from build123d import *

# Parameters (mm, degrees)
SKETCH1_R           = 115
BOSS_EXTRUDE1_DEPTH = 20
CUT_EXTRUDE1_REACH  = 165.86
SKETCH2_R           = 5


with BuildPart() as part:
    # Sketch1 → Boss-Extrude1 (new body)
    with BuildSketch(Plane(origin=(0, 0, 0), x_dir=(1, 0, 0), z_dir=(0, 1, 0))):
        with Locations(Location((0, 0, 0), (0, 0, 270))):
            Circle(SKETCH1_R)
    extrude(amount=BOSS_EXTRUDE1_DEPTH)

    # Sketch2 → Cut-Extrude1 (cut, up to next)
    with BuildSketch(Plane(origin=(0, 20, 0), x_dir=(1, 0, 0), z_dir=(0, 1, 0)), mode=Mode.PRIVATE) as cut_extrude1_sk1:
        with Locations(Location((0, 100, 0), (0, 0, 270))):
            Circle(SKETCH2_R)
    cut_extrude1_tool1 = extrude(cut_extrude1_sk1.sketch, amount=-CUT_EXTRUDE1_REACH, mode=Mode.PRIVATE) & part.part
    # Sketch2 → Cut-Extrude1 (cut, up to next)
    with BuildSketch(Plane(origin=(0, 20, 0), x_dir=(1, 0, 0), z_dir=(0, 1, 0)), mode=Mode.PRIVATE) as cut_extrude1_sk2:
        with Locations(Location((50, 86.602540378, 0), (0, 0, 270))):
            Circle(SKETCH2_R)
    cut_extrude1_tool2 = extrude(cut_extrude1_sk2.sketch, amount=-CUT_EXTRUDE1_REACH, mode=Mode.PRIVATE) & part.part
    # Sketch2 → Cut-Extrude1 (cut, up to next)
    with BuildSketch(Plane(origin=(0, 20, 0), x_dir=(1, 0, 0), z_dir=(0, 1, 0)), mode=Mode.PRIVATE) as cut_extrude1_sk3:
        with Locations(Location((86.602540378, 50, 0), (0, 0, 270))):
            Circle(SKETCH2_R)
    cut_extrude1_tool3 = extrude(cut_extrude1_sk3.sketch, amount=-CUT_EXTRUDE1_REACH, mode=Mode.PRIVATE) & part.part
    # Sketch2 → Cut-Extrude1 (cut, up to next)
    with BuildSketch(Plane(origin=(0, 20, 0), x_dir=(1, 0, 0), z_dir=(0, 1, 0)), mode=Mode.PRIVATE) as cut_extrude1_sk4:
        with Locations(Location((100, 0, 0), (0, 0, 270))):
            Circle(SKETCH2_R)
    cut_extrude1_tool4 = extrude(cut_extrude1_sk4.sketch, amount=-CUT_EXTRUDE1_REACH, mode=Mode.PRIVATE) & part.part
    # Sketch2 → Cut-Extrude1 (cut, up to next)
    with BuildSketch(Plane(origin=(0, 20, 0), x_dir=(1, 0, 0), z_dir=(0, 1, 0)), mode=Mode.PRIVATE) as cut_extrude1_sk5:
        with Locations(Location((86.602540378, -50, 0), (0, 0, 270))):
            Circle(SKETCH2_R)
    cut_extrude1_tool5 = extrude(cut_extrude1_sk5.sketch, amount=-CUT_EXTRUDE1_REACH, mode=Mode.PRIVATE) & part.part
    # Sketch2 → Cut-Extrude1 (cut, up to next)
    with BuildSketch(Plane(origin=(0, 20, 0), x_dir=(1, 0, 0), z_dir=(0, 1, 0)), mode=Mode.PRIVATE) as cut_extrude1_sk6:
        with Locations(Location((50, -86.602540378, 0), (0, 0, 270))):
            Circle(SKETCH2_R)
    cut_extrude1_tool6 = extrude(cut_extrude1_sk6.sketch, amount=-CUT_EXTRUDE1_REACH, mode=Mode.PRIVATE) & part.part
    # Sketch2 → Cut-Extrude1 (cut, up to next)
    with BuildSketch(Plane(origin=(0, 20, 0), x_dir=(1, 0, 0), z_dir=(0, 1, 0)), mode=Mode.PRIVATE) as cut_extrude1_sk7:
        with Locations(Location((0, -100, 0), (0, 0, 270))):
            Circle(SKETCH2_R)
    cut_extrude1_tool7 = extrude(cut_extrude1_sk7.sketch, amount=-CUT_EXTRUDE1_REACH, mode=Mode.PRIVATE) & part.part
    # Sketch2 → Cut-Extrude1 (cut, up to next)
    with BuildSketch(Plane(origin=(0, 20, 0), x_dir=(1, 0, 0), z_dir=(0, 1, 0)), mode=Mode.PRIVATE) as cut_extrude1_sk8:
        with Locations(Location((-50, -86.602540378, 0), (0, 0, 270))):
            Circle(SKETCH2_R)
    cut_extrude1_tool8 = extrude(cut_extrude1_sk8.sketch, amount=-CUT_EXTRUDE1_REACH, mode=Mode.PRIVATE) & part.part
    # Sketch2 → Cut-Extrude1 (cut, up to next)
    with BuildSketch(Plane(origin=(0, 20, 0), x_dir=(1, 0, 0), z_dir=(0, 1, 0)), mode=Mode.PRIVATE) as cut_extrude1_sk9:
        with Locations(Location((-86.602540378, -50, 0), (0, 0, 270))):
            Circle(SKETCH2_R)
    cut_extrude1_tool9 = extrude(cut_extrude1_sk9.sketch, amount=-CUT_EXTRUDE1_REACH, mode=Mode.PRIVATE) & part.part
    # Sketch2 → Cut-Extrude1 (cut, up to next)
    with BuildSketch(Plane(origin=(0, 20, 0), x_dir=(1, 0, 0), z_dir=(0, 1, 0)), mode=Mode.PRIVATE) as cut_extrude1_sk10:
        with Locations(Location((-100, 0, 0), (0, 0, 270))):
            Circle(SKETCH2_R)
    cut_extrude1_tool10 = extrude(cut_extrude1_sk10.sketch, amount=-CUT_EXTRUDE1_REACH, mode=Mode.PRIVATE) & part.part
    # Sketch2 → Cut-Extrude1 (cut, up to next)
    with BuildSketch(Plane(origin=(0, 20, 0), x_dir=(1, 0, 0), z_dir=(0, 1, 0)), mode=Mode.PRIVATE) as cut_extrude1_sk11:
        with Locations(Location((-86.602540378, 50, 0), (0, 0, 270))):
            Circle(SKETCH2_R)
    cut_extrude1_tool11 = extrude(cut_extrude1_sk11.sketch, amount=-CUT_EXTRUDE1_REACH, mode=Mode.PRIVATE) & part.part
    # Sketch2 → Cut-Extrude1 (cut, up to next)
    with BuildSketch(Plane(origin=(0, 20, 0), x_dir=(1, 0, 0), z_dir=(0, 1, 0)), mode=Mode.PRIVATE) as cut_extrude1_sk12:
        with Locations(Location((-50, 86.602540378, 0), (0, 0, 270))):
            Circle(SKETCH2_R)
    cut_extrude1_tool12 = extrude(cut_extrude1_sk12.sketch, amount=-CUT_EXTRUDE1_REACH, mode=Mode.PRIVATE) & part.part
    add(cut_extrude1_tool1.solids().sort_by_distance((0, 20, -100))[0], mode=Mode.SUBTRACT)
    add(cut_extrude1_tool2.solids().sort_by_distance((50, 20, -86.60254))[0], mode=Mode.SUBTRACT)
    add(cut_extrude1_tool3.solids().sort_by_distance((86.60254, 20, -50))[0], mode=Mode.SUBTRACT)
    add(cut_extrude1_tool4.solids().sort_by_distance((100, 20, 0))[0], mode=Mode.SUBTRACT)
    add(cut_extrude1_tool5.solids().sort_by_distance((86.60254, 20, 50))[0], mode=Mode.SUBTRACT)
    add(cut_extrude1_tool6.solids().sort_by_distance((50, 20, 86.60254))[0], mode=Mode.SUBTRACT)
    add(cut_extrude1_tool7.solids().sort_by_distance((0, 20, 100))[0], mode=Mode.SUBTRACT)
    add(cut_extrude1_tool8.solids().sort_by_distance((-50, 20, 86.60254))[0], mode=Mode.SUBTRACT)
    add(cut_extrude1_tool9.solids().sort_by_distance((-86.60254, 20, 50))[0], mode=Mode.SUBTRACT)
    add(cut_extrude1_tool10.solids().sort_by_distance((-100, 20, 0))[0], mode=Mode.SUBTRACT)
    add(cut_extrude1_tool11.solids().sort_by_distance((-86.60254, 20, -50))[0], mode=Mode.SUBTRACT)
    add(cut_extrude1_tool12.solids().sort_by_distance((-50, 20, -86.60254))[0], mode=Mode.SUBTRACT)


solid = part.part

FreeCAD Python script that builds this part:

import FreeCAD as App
import Part
import Sketcher

V = App.Vector

doc = App.newDocument("Part")
body = doc.addObject("PartDesign::Body", "Body")

# Sketch on XZ plane
sketch1 = doc.addObject("Sketcher::SketchObject", "Sketch")
body.addObject(sketch1)
sketch1.AttachmentSupport = (doc.XZ_Plane, [""])
sketch1.MapMode = "FlatFace"
sketch1.addGeometry(Part.Circle(V(0, 0, 0), V(0, 0, 1), 115), False)
sketch1.addConstraint(Sketcher.Constraint("Coincident", 0, 3, -1, 1))
sketch1.addConstraint(Sketcher.Constraint("Diameter", 0, 230.0))
pad1 = doc.addObject("PartDesign::Pad", "Pad")
body.addObject(pad1)
pad1.Profile = sketch1
pad1.Length = 20
pad1.Reversed = True

# Sketch on XZ plane
sketch2 = doc.addObject("Sketcher::SketchObject", "Sketch001")
body.addObject(sketch2)
sketch2.AttachmentSupport = (doc.XZ_Plane, [""])
sketch2.MapMode = "FlatFace"
sketch2.AttachmentOffset = App.Placement(V(0, 0, -20), App.Rotation())
sketch2.addGeometry(Part.Circle(V(0, -100, 0), V(0, 0, 1), 5), False)
sketch2.addConstraint(Sketcher.Constraint("PointOnObject", 0, 3, -2))
sketch2.addConstraint(Sketcher.Constraint("Diameter", 0, 10.0))
sketch2.addConstraint(Sketcher.Constraint("DistanceY", 0, 3, -1, 1, 100.0))
pocket1 = doc.addObject("PartDesign::Pocket", "Pocket")
body.addObject(pocket1)
pocket1.Profile = sketch2
pocket1.Type = "UpToFirst"
pocket1.Reversed = True

# Sketch on XZ plane
sketch3 = doc.addObject("Sketcher::SketchObject", "Sketch002")
body.addObject(sketch3)
sketch3.AttachmentSupport = (doc.XZ_Plane, [""])
sketch3.MapMode = "FlatFace"
sketch3.AttachmentOffset = App.Placement(V(0, 0, -20), App.Rotation())
sketch3.addGeometry(Part.Circle(V(50, -87, 0), V(0, 0, 1), 5), False)
sketch3.addConstraint(Sketcher.Constraint("Diameter", 0, 10.0))
sketch3.addConstraint(Sketcher.Constraint("DistanceX", -1, 1, 0, 3, 50.0))
sketch3.addConstraint(Sketcher.Constraint("DistanceY", 0, 3, -1, 1, 86.60254))
pocket2 = doc.addObject("PartDesign::Pocket", "Pocket001")
body.addObject(pocket2)
pocket2.Profile = sketch3
pocket2.Type = "UpToFirst"
pocket2.Reversed = True

# Sketch on XZ plane
sketch4 = doc.addObject("Sketcher::SketchObject", "Sketch003")
body.addObject(sketch4)
sketch4.AttachmentSupport = (doc.XZ_Plane, [""])
sketch4.MapMode = "FlatFace"
sketch4.AttachmentOffset = App.Placement(V(0, 0, -20), App.Rotation())
sketch4.addGeometry(Part.Circle(V(87, -50, 0), V(0, 0, 1), 5), False)
sketch4.addConstraint(Sketcher.Constraint("Diameter", 0, 10.0))
sketch4.addConstraint(Sketcher.Constraint("DistanceY", 0, 3, -1, 1, 50.0))
sketch4.addConstraint(Sketcher.Constraint("DistanceX", -1, 1, 0, 3, 86.60254))
pocket3 = doc.addObject("PartDesign::Pocket", "Pocket002")
body.addObject(pocket3)
pocket3.Profile = sketch4
pocket3.Type = "UpToFirst"
pocket3.Reversed = True

# Sketch on XZ plane
sketch5 = doc.addObject("Sketcher::SketchObject", "Sketch004")
body.addObject(sketch5)
sketch5.AttachmentSupport = (doc.XZ_Plane, [""])
sketch5.MapMode = "FlatFace"
sketch5.AttachmentOffset = App.Placement(V(0, 0, -20), App.Rotation())
sketch5.addGeometry(Part.Circle(V(100, 0, 0), V(0, 0, 1), 5), False)
sketch5.addConstraint(Sketcher.Constraint("PointOnObject", 0, 3, -1))
sketch5.addConstraint(Sketcher.Constraint("Diameter", 0, 10.0))
sketch5.addConstraint(Sketcher.Constraint("DistanceX", -1, 1, 0, 3, 100.0))
pocket4 = doc.addObject("PartDesign::Pocket", "Pocket003")
body.addObject(pocket4)
pocket4.Profile = sketch5
pocket4.Type = "UpToFirst"
pocket4.Reversed = True

# Sketch on XZ plane
sketch6 = doc.addObject("Sketcher::SketchObject", "Sketch005")
body.addObject(sketch6)
sketch6.AttachmentSupport = (doc.XZ_Plane, [""])
sketch6.MapMode = "FlatFace"
sketch6.AttachmentOffset = App.Placement(V(0, 0, -20), App.Rotation())
sketch6.addGeometry(Part.Circle(V(87, 50, 0), V(0, 0, 1), 5), False)
sketch6.addConstraint(Sketcher.Constraint("Diameter", 0, 10.0))
sketch6.addConstraint(Sketcher.Constraint("DistanceY", -1, 1, 0, 3, 50.0))
sketch6.addConstraint(Sketcher.Constraint("DistanceX", -1, 1, 0, 3, 86.60254))
pocket5 = doc.addObject("PartDesign::Pocket", "Pocket004")
body.addObject(pocket5)
pocket5.Profile = sketch6
pocket5.Type = "UpToFirst"
pocket5.Reversed = True

# Sketch on XZ plane
sketch7 = doc.addObject("Sketcher::SketchObject", "Sketch006")
body.addObject(sketch7)
sketch7.AttachmentSupport = (doc.XZ_Plane, [""])
sketch7.MapMode = "FlatFace"
sketch7.AttachmentOffset = App.Placement(V(0, 0, -20), App.Rotation())
sketch7.addGeometry(Part.Circle(V(50, 87, 0), V(0, 0, 1), 5), False)
sketch7.addConstraint(Sketcher.Constraint("Diameter", 0, 10.0))
sketch7.addConstraint(Sketcher.Constraint("DistanceX", -1, 1, 0, 3, 50.0))
sketch7.addConstraint(Sketcher.Constraint("DistanceY", -1, 1, 0, 3, 86.60254))
pocket6 = doc.addObject("PartDesign::Pocket", "Pocket005")
body.addObject(pocket6)
pocket6.Profile = sketch7
pocket6.Type = "UpToFirst"
pocket6.Reversed = True

# Sketch on XZ plane
sketch8 = doc.addObject("Sketcher::SketchObject", "Sketch007")
body.addObject(sketch8)
sketch8.AttachmentSupport = (doc.XZ_Plane, [""])
sketch8.MapMode = "FlatFace"
sketch8.AttachmentOffset = App.Placement(V(0, 0, -20), App.Rotation())
sketch8.addGeometry(Part.Circle(V(0, 100, 0), V(0, 0, 1), 5), False)
sketch8.addConstraint(Sketcher.Constraint("PointOnObject", 0, 3, -2))
sketch8.addConstraint(Sketcher.Constraint("Diameter", 0, 10.0))
sketch8.addConstraint(Sketcher.Constraint("DistanceY", -1, 1, 0, 3, 100.0))
pocket7 = doc.addObject("PartDesign::Pocket", "Pocket006")
body.addObject(pocket7)
pocket7.Profile = sketch8
pocket7.Type = "UpToFirst"
pocket7.Reversed = True

# Sketch on XZ plane
sketch9 = doc.addObject("Sketcher::SketchObject", "Sketch008")
body.addObject(sketch9)
sketch9.AttachmentSupport = (doc.XZ_Plane, [""])
sketch9.MapMode = "FlatFace"
sketch9.AttachmentOffset = App.Placement(V(0, 0, -20), App.Rotation())
sketch9.addGeometry(Part.Circle(V(-50, 87, 0), V(0, 0, 1), 5), False)
sketch9.addConstraint(Sketcher.Constraint("Diameter", 0, 10.0))
sketch9.addConstraint(Sketcher.Constraint("DistanceX", 0, 3, -1, 1, 50.0))
sketch9.addConstraint(Sketcher.Constraint("DistanceY", -1, 1, 0, 3, 86.60254))
pocket8 = doc.addObject("PartDesign::Pocket", "Pocket007")
body.addObject(pocket8)
pocket8.Profile = sketch9
pocket8.Type = "UpToFirst"
pocket8.Reversed = True

# Sketch on XZ plane
sketch10 = doc.addObject("Sketcher::SketchObject", "Sketch009")
body.addObject(sketch10)
sketch10.AttachmentSupport = (doc.XZ_Plane, [""])
sketch10.MapMode = "FlatFace"
sketch10.AttachmentOffset = App.Placement(V(0, 0, -20), App.Rotation())
sketch10.addGeometry(Part.Circle(V(-87, 50, 0), V(0, 0, 1), 5), False)
sketch10.addConstraint(Sketcher.Constraint("Diameter", 0, 10.0))
sketch10.addConstraint(Sketcher.Constraint("DistanceY", -1, 1, 0, 3, 50.0))
sketch10.addConstraint(Sketcher.Constraint("DistanceX", 0, 3, -1, 1, 86.60254))
pocket9 = doc.addObject("PartDesign::Pocket", "Pocket008")
body.addObject(pocket9)
pocket9.Profile = sketch10
pocket9.Type = "UpToFirst"
pocket9.Reversed = True

# Sketch on XZ plane
sketch11 = doc.addObject("Sketcher::SketchObject", "Sketch010")
body.addObject(sketch11)
sketch11.AttachmentSupport = (doc.XZ_Plane, [""])
sketch11.MapMode = "FlatFace"
sketch11.AttachmentOffset = App.Placement(V(0, 0, -20), App.Rotation())
sketch11.addGeometry(Part.Circle(V(-100, 0, 0), V(0, 0, 1), 5), False)
sketch11.addConstraint(Sketcher.Constraint("PointOnObject", 0, 3, -1))
sketch11.addConstraint(Sketcher.Constraint("Diameter", 0, 10.0))
sketch11.addConstraint(Sketcher.Constraint("DistanceX", 0, 3, -1, 1, 100.0))
pocket10 = doc.addObject("PartDesign::Pocket", "Pocket009")
body.addObject(pocket10)
pocket10.Profile = sketch11
pocket10.Type = "UpToFirst"
pocket10.Reversed = True

# Sketch on XZ plane
sketch12 = doc.addObject("Sketcher::SketchObject", "Sketch011")
body.addObject(sketch12)
sketch12.AttachmentSupport = (doc.XZ_Plane, [""])
sketch12.MapMode = "FlatFace"
sketch12.AttachmentOffset = App.Placement(V(0, 0, -20), App.Rotation())
sketch12.addGeometry(Part.Circle(V(-87, -50, 0), V(0, 0, 1), 5), False)
sketch12.addConstraint(Sketcher.Constraint("Diameter", 0, 10.0))
sketch12.addConstraint(Sketcher.Constraint("DistanceY", 0, 3, -1, 1, 50.0))
sketch12.addConstraint(Sketcher.Constraint("DistanceX", 0, 3, -1, 1, 86.60254))
pocket11 = doc.addObject("PartDesign::Pocket", "Pocket010")
body.addObject(pocket11)
pocket11.Profile = sketch12
pocket11.Type = "UpToFirst"
pocket11.Reversed = True

# Sketch on XZ plane
sketch13 = doc.addObject("Sketcher::SketchObject", "Sketch012")
body.addObject(sketch13)
sketch13.AttachmentSupport = (doc.XZ_Plane, [""])
sketch13.MapMode = "FlatFace"
sketch13.AttachmentOffset = App.Placement(V(0, 0, -20), App.Rotation())
sketch13.addGeometry(Part.Circle(V(-50, -87, 0), V(0, 0, 1), 5), False)
sketch13.addConstraint(Sketcher.Constraint("Diameter", 0, 10.0))
sketch13.addConstraint(Sketcher.Constraint("DistanceX", 0, 3, -1, 1, 50.0))
sketch13.addConstraint(Sketcher.Constraint("DistanceY", 0, 3, -1, 1, 86.60254))
pocket12 = doc.addObject("PartDesign::Pocket", "Pocket011")
body.addObject(pocket12)
pocket12.Profile = sketch13
pocket12.Type = "UpToFirst"
pocket12.Reversed = True

doc.recompute()
